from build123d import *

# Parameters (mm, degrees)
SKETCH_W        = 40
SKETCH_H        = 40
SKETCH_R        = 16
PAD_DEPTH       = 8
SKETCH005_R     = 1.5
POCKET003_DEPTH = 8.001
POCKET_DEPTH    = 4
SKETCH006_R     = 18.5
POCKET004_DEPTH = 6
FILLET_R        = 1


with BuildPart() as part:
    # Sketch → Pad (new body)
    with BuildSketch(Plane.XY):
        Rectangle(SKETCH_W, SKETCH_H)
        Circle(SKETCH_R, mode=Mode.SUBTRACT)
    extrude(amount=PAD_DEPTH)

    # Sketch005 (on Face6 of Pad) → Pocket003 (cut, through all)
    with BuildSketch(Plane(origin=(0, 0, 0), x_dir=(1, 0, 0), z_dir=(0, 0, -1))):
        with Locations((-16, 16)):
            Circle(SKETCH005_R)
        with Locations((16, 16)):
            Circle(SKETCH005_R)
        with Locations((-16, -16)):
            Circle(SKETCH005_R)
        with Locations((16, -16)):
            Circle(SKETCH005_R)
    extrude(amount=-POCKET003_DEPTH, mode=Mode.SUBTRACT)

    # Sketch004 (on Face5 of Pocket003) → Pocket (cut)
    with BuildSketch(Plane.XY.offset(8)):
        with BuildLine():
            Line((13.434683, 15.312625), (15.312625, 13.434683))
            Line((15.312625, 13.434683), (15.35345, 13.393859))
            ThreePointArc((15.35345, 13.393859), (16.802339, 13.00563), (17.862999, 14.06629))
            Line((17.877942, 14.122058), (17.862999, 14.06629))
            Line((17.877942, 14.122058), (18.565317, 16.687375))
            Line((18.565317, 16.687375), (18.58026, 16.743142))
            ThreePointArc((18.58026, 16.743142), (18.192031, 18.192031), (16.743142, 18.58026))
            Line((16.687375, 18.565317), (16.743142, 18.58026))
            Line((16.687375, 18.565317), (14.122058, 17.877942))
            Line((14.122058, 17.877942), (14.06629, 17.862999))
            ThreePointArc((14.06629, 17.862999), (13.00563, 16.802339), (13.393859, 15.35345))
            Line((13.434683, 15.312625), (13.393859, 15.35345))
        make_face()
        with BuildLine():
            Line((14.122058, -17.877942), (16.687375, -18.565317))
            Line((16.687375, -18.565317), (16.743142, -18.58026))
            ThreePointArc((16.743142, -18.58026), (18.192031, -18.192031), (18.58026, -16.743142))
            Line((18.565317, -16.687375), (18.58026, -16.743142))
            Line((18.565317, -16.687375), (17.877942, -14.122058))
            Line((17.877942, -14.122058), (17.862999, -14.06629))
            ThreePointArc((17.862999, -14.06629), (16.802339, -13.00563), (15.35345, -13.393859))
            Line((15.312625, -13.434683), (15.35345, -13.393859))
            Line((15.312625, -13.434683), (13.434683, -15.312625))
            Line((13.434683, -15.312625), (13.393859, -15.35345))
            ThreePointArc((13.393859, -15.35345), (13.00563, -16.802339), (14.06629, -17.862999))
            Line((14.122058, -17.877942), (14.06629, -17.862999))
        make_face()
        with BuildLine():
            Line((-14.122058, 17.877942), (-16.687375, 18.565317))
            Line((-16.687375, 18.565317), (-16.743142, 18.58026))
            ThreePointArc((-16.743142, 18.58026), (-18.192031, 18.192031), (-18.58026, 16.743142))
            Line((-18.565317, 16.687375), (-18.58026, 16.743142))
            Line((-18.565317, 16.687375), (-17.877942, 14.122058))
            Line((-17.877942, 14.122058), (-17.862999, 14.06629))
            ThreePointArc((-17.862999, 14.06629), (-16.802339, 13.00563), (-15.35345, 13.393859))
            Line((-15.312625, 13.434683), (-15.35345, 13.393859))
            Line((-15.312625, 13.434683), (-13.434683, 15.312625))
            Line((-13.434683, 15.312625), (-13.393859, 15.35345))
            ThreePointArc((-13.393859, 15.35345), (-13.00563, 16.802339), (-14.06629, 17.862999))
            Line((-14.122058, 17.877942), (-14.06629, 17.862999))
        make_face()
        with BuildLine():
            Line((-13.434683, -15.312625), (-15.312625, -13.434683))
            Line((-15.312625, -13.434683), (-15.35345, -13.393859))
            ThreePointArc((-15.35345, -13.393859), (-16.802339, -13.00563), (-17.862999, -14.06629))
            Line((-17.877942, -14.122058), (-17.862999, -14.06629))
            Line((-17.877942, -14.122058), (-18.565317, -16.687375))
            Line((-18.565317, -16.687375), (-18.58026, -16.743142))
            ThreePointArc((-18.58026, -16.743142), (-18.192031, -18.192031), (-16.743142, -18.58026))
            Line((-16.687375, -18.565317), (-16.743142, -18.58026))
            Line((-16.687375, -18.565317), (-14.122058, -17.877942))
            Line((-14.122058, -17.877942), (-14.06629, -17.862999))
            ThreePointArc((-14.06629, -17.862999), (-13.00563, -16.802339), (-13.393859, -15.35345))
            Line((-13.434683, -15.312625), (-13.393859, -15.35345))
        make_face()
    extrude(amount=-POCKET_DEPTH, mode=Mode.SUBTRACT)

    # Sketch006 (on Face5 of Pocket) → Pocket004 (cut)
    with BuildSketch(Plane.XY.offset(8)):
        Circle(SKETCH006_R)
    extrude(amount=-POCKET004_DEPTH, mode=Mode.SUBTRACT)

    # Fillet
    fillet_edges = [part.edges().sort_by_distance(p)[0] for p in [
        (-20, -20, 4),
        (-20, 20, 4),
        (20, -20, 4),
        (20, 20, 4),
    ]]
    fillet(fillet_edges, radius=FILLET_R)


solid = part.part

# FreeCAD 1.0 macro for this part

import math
import FreeCAD as App
import Part
import Sketcher
from FreeCAD import Vector
Q = App.Units.Quantity


def edges_at(feature, points):
    """Names of the edges that pass closest to the given points."""
    edges = feature.Shape.Edges
    near = lambda p: min(range(len(edges)), key=lambda i: edges[i].distToShape(Part.Vertex(*p))[0])
    return sorted({f"Edge{near(p) + 1}" for p in points})

doc = App.newDocument("Part")
body = doc.addObject("PartDesign::Body", "Body")

sketch1 = body.newObject("Sketcher::SketchObject", "Sketch")
sketch1.AttachmentSupport = (doc.getObject("XY_Plane"), [""])
sketch1.MapMode = "FlatFace"
sketch1.addGeometry([
    Part.LineSegment(Vector(-20, 20, 0), Vector(-20, -20, 0)),
    Part.LineSegment(Vector(-20, -20, 0), Vector(20, -20, 0)),
    Part.LineSegment(Vector(20, -20, 0), Vector(20, 20, 0)),
    Part.LineSegment(Vector(20, 20, 0), Vector(-20, 20, 0)),
    Part.Circle(Vector(0, 0, 0), Vector(0, 0, 1), 16),
], False)
sketch1.addConstraint([
    Sketcher.Constraint("Coincident", 0, 2, 1, 1),
    Sketcher.Constraint("Coincident", 1, 2, 2, 1),
    Sketcher.Constraint("Coincident", 2, 2, 3, 1),
    Sketcher.Constraint("Coincident", 3, 2, 0, 1),
    Sketcher.Constraint("Vertical", 0),
    Sketcher.Constraint("Horizontal", 1),
    Sketcher.Constraint("Vertical", 2),
    Sketcher.Constraint("Horizontal", 3),
    Sketcher.Constraint("Coincident", 4, 3, -1, 1),
    Sketcher.Constraint("Symmetric", 0, 2, 2, 2, -1, 1),
    Sketcher.Constraint("Equal", 3, 0),
    Sketcher.Constraint("Diameter", 4, Q("32 mm")),
    Sketcher.Constraint("DistanceX", 1, 1, 1, 2, Q("40 mm")),
])
pad1 = body.newObject("PartDesign::Pad", "Pad")
pad1.Profile = sketch1
pad1.Length = 8

sketch2 = body.newObject("Sketcher::SketchObject", "Sketch001")
sketch2.AttachmentSupport = (doc.getObject("XY_Plane"), [""])
sketch2.MapMode = "FlatFace"
sketch2.addGeometry([
    Part.Circle(Vector(-16, -16, 0), Vector(0, 0, 1), 1.5),
    Part.Circle(Vector(16, -16, 0), Vector(0, 0, 1), 1.5),
    Part.Circle(Vector(-16, 16, 0), Vector(0, 0, 1), 1.5),
    Part.Circle(Vector(16, 16, 0), Vector(0, 0, 1), 1.5),
], False)
sketch2.addConstraint([
    Sketcher.Constraint("Equal", 0, 1),
    Sketcher.Constraint("Equal", 1, 2),
    Sketcher.Constraint("Equal", 2, 3),
    Sketcher.Constraint("Symmetric", 1, 3, 2, 3, -1, 1),
    Sketcher.Constraint("Symmetric", 0, 3, 3, 3, -1, 1),
    Sketcher.Constraint("Symmetric", 0, 3, 1, 3, -2),
    Sketcher.Constraint("Diameter", 0, Q("3 mm")),
    Sketcher.Constraint("DistanceX", 0, 3, -1, 1, Q("16 mm")),
    Sketcher.Constraint("DistanceY", 0, 3, -1, 1, Q("16 mm")),
])
pocket1 = body.newObject("PartDesign::Pocket", "Pocket")
pocket1.Profile = sketch2
pocket1.Type = "ThroughAll"
pocket1.Reversed = True

sketch3 = body.newObject("Sketcher::SketchObject", "Sketch002")
sketch3.AttachmentSupport = (doc.getObject("XY_Plane"), [""])
sketch3.MapMode = "FlatFace"
sketch3.AttachmentOffset = App.Placement(Vector(0, 0, 8), App.Rotation())
sketch3.addGeometry([
    Part.LineSegment(Vector(13.43, 15.31, 0), Vector(15.31, 13.43, 0)),
    Part.LineSegment(Vector(15.31, 13.43, 0), Vector(15.35, 13.39, 0)),
    Part.ArcOfCircle(Part.Circle(Vector(16.41, 14.45, 0), Vector(0, 0, 1), 1.5), math.radians(-135), math.radians(-15)),
    Part.LineSegment(Vector(17.86, 14.07, 0), Vector(17.88, 14.12, 0)),
    Part.LineSegment(Vector(17.88, 14.12, 0), Vector(18.57, 16.69, 0)),
    Part.LineSegment(Vector(18.57, 16.69, 0), Vector(18.58, 16.74, 0)),
    Part.ArcOfCircle(Part.Circle(Vector(17.13, 17.13, 0), Vector(0, 0, 1), 1.5), math.radians(-15), math.radians(105)),
    Part.LineSegment(Vector(16.74, 18.58, 0), Vector(16.69, 18.57, 0)),
    Part.LineSegment(Vector(16.69, 18.57, 0), Vector(14.12, 17.88, 0)),
    Part.LineSegment(Vector(14.12, 17.88, 0), Vector(14.07, 17.86, 0)),
    Part.ArcOfCircle(Part.Circle(Vector(14.45, 16.41, 0), Vector(0, 0, 1), 1.5), math.radians(105), math.radians(225)),
    Part.LineSegment(Vector(13.39, 15.35, 0), Vector(13.43, 15.31, 0)),
    Part.LineSegment(Vector(14.12, -17.88, 0), Vector(16.69, -18.57, 0)),
    Part.LineSegment(Vector(16.69, -18.57, 0), Vector(16.74, -18.58, 0)),
    Part.ArcOfCircle(Part.Circle(Vector(17.13, -17.13, 0), Vector(0, 0, 1), 1.5), math.radians(-105), math.radians(15)),
    Part.LineSegment(Vector(18.58, -16.74, 0), Vector(18.57, -16.69, 0)),
    Part.LineSegment(Vector(18.57, -16.69, 0), Vector(17.88, -14.12, 0)),
    Part.LineSegment(Vector(17.88, -14.12, 0), Vector(17.86, -14.07, 0)),
    Part.ArcOfCircle(Part.Circle(Vector(16.41, -14.45, 0), Vector(0, 0, 1), 1.5), math.radians(15), math.radians(135)),
    Part.LineSegment(Vector(15.35, -13.39, 0), Vector(15.31, -13.43, 0)),
    Part.LineSegment(Vector(15.31, -13.43, 0), Vector(13.43, -15.31, 0)),
    Part.LineSegment(Vector(13.43, -15.31, 0), Vector(13.39, -15.35, 0)),
    Part.ArcOfCircle(Part.Circle(Vector(14.45, -16.41, 0), Vector(0, 0, 1), 1.5), math.radians(135), math.radians(255)),
    Part.LineSegment(Vector(14.07, -17.86, 0), Vector(14.12, -17.88, 0)),
    Part.LineSegment(Vector(-14.12, 17.88, 0), Vector(-16.69, 18.57, 0)),
    Part.LineSegment(Vector(-16.69, 18.57, 0), Vector(-16.74, 18.58, 0)),
    Part.ArcOfCircle(Part.Circle(Vector(-17.13, 17.13, 0), Vector(0, 0, 1), 1.5), math.radians(75), math.radians(195)),
    Part.LineSegment(Vector(-18.58, 16.74, 0), Vector(-18.57, 16.69, 0)),
    Part.LineSegment(Vector(-18.57, 16.69, 0), Vector(-17.88, 14.12, 0)),
    Part.LineSegment(Vector(-17.88, 14.12, 0), Vector(-17.86, 14.07, 0)),
    Part.ArcOfCircle(Part.Circle(Vector(-16.41, 14.45, 0), Vector(0, 0, 1), 1.5), math.radians(-165), math.radians(-45)),
    Part.LineSegment(Vector(-15.35, 13.39, 0), Vector(-15.31, 13.43, 0)),
    Part.LineSegment(Vector(-15.31, 13.43, 0), Vector(-13.43, 15.31, 0)),
    Part.LineSegment(Vector(-13.43, 15.31, 0), Vector(-13.39, 15.35, 0)),
    Part.ArcOfCircle(Part.Circle(Vector(-14.45, 16.41, 0), Vector(0, 0, 1), 1.5), math.radians(-45), math.radians(75)),
    Part.LineSegment(Vector(-14.07, 17.86, 0), Vector(-14.12, 17.88, 0)),
    Part.LineSegment(Vector(-13.43, -15.31, 0), Vector(-15.31, -13.43, 0)),
    Part.LineSegment(Vector(-15.31, -13.43, 0), Vector(-15.35, -13.39, 0)),
    Part.ArcOfCircle(Part.Circle(Vector(-16.41, -14.45, 0), Vector(0, 0, 1), 1.5), math.radians(45), math.radians(165)),
    Part.LineSegment(Vector(-17.86, -14.07, 0), Vector(-17.88, -14.12, 0)),
    Part.LineSegment(Vector(-17.88, -14.12, 0), Vector(-18.57, -16.69, 0)),
    Part.LineSegment(Vector(-18.57, -16.69, 0), Vector(-18.58, -16.74, 0)),
    Part.ArcOfCircle(Part.Circle(Vector(-17.13, -17.13, 0), Vector(0, 0, 1), 1.5), math.radians(165), math.radians(285)),
    Part.LineSegment(Vector(-16.74, -18.58, 0), Vector(-16.69, -18.57, 0)),
    Part.LineSegment(Vector(-16.69, -18.57, 0), Vector(-14.12, -17.88, 0)),
    Part.LineSegment(Vector(-14.12, -17.88, 0), Vector(-14.07, -17.86, 0)),
    Part.ArcOfCircle(Part.Circle(Vector(-14.45, -16.41, 0), Vector(0, 0, 1), 1.5), math.radians(-75), math.radians(45)),
    Part.LineSegment(Vector(-13.39, -15.35, 0), Vector(-13.43, -15.31, 0)),
], False)
sketch3.addConstraint([
    Sketcher.Constraint("Coincident", 0, 2, 1, 1),
    Sketcher.Constraint("Coincident", 1, 2, 2, 1),
    Sketcher.Constraint("Tangent", 2, 2, 3, 1),
    Sketcher.Constraint("Coincident", 3, 2, 4, 1),
    Sketcher.Constraint("Coincident", 4, 2, 5, 1),
    Sketcher.Constraint("Coincident", 5, 2, 6, 1),
    Sketcher.Constraint("Coincident", 6, 2, 7, 1),
    Sketcher.Constraint("Coincident", 7, 2, 8, 1),
    Sketcher.Constraint("Coincident", 8, 2, 9, 1),
    Sketcher.Constraint("Tangent", 9, 2, 10, 1),
    Sketcher.Constraint("Coincident", 10, 2, 11, 1),
    Sketcher.Constraint("Coincident", 11, 2, 0, 1),
    Sketcher.Constraint("Coincident", 12, 2, 13, 1),
    Sketcher.Constraint("Coincident", 13, 2, 14, 1),
    Sketcher.Constraint("Coincident", 14, 2, 15, 1),
    Sketcher.Constraint("Coincident", 15, 2, 16, 1),
    Sketcher.Constraint("Coincident", 16, 2, 17, 1),
    Sketcher.Constraint("Tangent", 17, 2, 18, 1),
    Sketcher.Constraint("Coincident", 18, 2, 19, 1),
    Sketcher.Constraint("Coincident", 19, 2, 20, 1),
    Sketcher.Constraint("Coincident", 20, 2, 21, 1),
    Sketcher.Constraint("Coincident", 21, 2, 22, 1),
    Sketcher.Constraint("Tangent", 22, 2, 23, 1),
    Sketcher.Constraint("Coincident", 23, 2, 12, 1),
    Sketcher.Constraint("Coincident", 24, 2, 25, 1),
    Sketcher.Constraint("Coincident", 25, 2, 26, 1),
    Sketcher.Constraint("Coincident", 26, 2, 27, 1),
    Sketcher.Constraint("Coincident", 27, 2, 28, 1),
    Sketcher.Constraint("Coincident", 28, 2, 29, 1),
    Sketcher.Constraint("Tangent", 29, 2, 30, 1),
    Sketcher.Constraint("Coincident", 30, 2, 31, 1),
    Sketcher.Constraint("Coincident", 31, 2, 32, 1),
    Sketcher.Constraint("Coincident", 32, 2, 33, 1),
    Sketcher.Constraint("Coincident", 33, 2, 34, 1),
    Sketcher.Constraint("Tangent", 34, 2, 35, 1),
    Sketcher.Constraint("Coincident", 35, 2, 24, 1),
    Sketcher.Constraint("Coincident", 36, 2, 37, 1),
    Sketcher.Constraint("Coincident", 37, 2, 38, 1),
    Sketcher.Constraint("Tangent", 38, 2, 39, 1),
    Sketcher.Constraint("Coincident", 39, 2, 40, 1),
    Sketcher.Constraint("Coincident", 40, 2, 41, 1),
    Sketcher.Constraint("Coincident", 41, 2, 42, 1),
    Sketcher.Constraint("Coincident", 42, 2, 43, 1),
    Sketcher.Constraint("Coincident", 43, 2, 44, 1),
    Sketcher.Constraint("Coincident", 44, 2, 45, 1),
    Sketcher.Constraint("Tangent", 45, 2, 46, 1),
    Sketcher.Constraint("Coincident", 46, 2, 47, 1),
    Sketcher.Constraint("Coincident", 47, 2, 36, 1),
    Sketcher.Constraint("Equal", 2, 6),
    Sketcher.Constraint("Equal", 6, 10),
    Sketcher.Constraint("Equal", 10, 14),
    Sketcher.Constraint("Equal", 14, 18),
    Sketcher.Constraint("Equal", 18, 22),
    Sketcher.Constraint("Equal", 22, 26),
    Sketcher.Constraint("Equal", 26, 30),
    Sketcher.Constraint("Equal", 30, 34),
    Sketcher.Constraint("Equal", 34, 38),
    Sketcher.Constraint("Equal", 38, 42),
    Sketcher.Constraint("Equal", 42, 46),
    Sketcher.Constraint("Symmetric", 14, 3, 26, 3, -1, 1),
    Sketcher.Constraint("Symmetric", 18, 3, 30, 3, -1, 1),
    Sketcher.Constraint("Symmetric", 22, 3, 34, 3, -1, 1),
    Sketcher.Constraint("Symmetric", 2, 3, 38, 3, -1, 1),
    Sketcher.Constraint("Symmetric", 6, 3, 42, 3, -1, 1),
    Sketcher.Constraint("Symmetric", 10, 3, 46, 3, -1, 1),
    Sketcher.Constraint("Symmetric", 12, 2, 24, 2, -1, 1),
    Sketcher.Constraint("Symmetric", 15, 2, 27, 2, -1, 1),
    Sketcher.Constraint("Symmetric", 16, 2, 28, 2, -1, 1),
    Sketcher.Constraint("Symmetric", 19, 2, 31, 2, -1, 1),
    Sketcher.Constraint("Symmetric", 20, 2, 32, 2, -1, 1),
    Sketcher.Constraint("Symmetric", 23, 2, 35, 2, -1, 1),
    Sketcher.Constraint("Symmetric", 0, 2, 36, 2, -1, 1),
    Sketcher.Constraint("Symmetric", 3, 2, 39, 2, -1, 1),
    Sketcher.Constraint("Symmetric", 4, 2, 40, 2, -1, 1),
    Sketcher.Constraint("Symmetric", 7, 2, 43, 2, -1, 1),
    Sketcher.Constraint("Symmetric", 8, 2, 44, 2, -1, 1),
    Sketcher.Constraint("Symmetric", 11, 2, 47, 2, -1, 1),
    Sketcher.Constraint("Symmetric", 6, 3, 26, 3, -2),
    Sketcher.Constraint("Symmetric", 2, 3, 30, 3, -2),
    Sketcher.Constraint("Symmetric", 10, 3, 34, 3, -2),
    Sketcher.Constraint("Symmetric", 7, 2, 24, 2, -2),
    Sketcher.Constraint("Symmetric", 4, 2, 27, 2, -2),
    Sketcher.Constraint("Symmetric", 3, 2, 28, 2, -2),
    Sketcher.Constraint("Symmetric", 0, 2, 31, 2, -2),
    Sketcher.Constraint("Symmetric", 11, 2, 32, 2, -2),
    Sketcher.Constraint("Symmetric", 8, 2, 35, 2, -2),
    Sketcher.Constraint("Parallel", 3, 4),
    Sketcher.Constraint("Parallel", 8, 9),
    Sketcher.Constraint("Perpendicular", 4, 12),
    Sketcher.Constraint("Perpendicular", 5, 13),
    Sketcher.Constraint("Perpendicular", 11, 19),
    Sketcher.Constraint("Perpendicular", 0, 20),
    Sketcher.Constraint("Horizontal", 6, 2, 25, 2),
    Sketcher.Constraint("Horizontal", 5, 2, 26, 2),
    Sketcher.Constraint("Horizontal", 1, 2, 30, 2),
    Sketcher.Constraint("Horizontal", 10, 2, 33, 2),
    Sketcher.Constraint("Horizontal", 18, 2, 37, 2),
    Sketcher.Constraint("Horizontal", 14, 2, 41, 2),
    Sketcher.Constraint("Horizontal", 13, 2, 42, 2),
    Sketcher.Constraint("Horizontal", 21, 2, 46, 2),
    Sketcher.Constraint("Vertical", 6, 2, 13, 2),
    Sketcher.Constraint("Vertical", 5, 2, 14, 2),
    Sketcher.Constraint("Vertical", 1, 2, 18, 2),
    Sketcher.Constraint("Vertical", 10, 2, 21, 2),
    Sketcher.Constraint("Equal", 1, 3),
    Sketcher.Constraint("Equal", 0, 4),
    Sketcher.Constraint("Equal", 3, 5),
    Sketcher.Constraint("Equal", 5, 7),
    Sketcher.Constraint("Equal", 4, 8),
    Sketcher.Constraint("Equal", 7, 9),
    Sketcher.Constraint("Equal", 9, 11),
    Sketcher.Constraint("Radius", 2, Q("1.5 mm")),
    Sketcher.Constraint("Angle", 3, Q("74.999991 deg")),
    Sketcher.Constraint("DistanceX", -1, 1, 2, 2, Q("17.862999 mm")),
    Sketcher.Constraint("DistanceY", -1, 1, 9, 2, Q("17.862999 mm")),
    Sketcher.Constraint("DistanceX", 25, 2, 10, 2, Q("30.137001 mm")),
    Sketcher.Constraint("DistanceY", 18, 3, 0, 2, Q("27.889202 mm")),
    Sketcher.Constraint("DistanceY", 1, 2, 3, 2, Q("0.728199 mm")),
    Sketcher.Constraint("DistanceX", 10, 3, 4, 2, Q("4.110798 mm")),
    Sketcher.Constraint("DistanceX", 10, 2, 8, 2, Q("0.728199 mm")),
    Sketcher.Constraint("Distance", 0, Q("2.655811 mm")),
])
pocket2 = body.newObject("PartDesign::Pocket", "Pocket001")
pocket2.Profile = sketch3
pocket2.Length = 4

sketch4 = body.newObject("Sketcher::SketchObject", "Sketch003")
sketch4.AttachmentSupport = (doc.getObject("XY_Plane"), [""])
sketch4.MapMode = "FlatFace"
sketch4.AttachmentOffset = App.Placement(Vector(0, 0, 8), App.Rotation())
sketch4.addGeometry(Part.Circle(Vector(0, 0, 0), Vector(0, 0, 1), 18), False)
sketch4.addConstraint([
    Sketcher.Constraint("Coincident", 0, 3, -1, 1),
    Sketcher.Constraint("Diameter", 0, Q("37 mm")),
])
pocket3 = body.newObject("PartDesign::Pocket", "Pocket002")
pocket3.Profile = sketch4
pocket3.Length = 6
doc.recompute()

fillet = body.newObject("PartDesign::Fillet", "Fillet")
fillet.Base = (pocket3, edges_at(pocket3, [
    (-20, -20, 4),
    (-20, 20, 4),
    (20, -20, 4),
    (20, 20, 4),
]))
fillet.Radius = 1

doc.recompute()
